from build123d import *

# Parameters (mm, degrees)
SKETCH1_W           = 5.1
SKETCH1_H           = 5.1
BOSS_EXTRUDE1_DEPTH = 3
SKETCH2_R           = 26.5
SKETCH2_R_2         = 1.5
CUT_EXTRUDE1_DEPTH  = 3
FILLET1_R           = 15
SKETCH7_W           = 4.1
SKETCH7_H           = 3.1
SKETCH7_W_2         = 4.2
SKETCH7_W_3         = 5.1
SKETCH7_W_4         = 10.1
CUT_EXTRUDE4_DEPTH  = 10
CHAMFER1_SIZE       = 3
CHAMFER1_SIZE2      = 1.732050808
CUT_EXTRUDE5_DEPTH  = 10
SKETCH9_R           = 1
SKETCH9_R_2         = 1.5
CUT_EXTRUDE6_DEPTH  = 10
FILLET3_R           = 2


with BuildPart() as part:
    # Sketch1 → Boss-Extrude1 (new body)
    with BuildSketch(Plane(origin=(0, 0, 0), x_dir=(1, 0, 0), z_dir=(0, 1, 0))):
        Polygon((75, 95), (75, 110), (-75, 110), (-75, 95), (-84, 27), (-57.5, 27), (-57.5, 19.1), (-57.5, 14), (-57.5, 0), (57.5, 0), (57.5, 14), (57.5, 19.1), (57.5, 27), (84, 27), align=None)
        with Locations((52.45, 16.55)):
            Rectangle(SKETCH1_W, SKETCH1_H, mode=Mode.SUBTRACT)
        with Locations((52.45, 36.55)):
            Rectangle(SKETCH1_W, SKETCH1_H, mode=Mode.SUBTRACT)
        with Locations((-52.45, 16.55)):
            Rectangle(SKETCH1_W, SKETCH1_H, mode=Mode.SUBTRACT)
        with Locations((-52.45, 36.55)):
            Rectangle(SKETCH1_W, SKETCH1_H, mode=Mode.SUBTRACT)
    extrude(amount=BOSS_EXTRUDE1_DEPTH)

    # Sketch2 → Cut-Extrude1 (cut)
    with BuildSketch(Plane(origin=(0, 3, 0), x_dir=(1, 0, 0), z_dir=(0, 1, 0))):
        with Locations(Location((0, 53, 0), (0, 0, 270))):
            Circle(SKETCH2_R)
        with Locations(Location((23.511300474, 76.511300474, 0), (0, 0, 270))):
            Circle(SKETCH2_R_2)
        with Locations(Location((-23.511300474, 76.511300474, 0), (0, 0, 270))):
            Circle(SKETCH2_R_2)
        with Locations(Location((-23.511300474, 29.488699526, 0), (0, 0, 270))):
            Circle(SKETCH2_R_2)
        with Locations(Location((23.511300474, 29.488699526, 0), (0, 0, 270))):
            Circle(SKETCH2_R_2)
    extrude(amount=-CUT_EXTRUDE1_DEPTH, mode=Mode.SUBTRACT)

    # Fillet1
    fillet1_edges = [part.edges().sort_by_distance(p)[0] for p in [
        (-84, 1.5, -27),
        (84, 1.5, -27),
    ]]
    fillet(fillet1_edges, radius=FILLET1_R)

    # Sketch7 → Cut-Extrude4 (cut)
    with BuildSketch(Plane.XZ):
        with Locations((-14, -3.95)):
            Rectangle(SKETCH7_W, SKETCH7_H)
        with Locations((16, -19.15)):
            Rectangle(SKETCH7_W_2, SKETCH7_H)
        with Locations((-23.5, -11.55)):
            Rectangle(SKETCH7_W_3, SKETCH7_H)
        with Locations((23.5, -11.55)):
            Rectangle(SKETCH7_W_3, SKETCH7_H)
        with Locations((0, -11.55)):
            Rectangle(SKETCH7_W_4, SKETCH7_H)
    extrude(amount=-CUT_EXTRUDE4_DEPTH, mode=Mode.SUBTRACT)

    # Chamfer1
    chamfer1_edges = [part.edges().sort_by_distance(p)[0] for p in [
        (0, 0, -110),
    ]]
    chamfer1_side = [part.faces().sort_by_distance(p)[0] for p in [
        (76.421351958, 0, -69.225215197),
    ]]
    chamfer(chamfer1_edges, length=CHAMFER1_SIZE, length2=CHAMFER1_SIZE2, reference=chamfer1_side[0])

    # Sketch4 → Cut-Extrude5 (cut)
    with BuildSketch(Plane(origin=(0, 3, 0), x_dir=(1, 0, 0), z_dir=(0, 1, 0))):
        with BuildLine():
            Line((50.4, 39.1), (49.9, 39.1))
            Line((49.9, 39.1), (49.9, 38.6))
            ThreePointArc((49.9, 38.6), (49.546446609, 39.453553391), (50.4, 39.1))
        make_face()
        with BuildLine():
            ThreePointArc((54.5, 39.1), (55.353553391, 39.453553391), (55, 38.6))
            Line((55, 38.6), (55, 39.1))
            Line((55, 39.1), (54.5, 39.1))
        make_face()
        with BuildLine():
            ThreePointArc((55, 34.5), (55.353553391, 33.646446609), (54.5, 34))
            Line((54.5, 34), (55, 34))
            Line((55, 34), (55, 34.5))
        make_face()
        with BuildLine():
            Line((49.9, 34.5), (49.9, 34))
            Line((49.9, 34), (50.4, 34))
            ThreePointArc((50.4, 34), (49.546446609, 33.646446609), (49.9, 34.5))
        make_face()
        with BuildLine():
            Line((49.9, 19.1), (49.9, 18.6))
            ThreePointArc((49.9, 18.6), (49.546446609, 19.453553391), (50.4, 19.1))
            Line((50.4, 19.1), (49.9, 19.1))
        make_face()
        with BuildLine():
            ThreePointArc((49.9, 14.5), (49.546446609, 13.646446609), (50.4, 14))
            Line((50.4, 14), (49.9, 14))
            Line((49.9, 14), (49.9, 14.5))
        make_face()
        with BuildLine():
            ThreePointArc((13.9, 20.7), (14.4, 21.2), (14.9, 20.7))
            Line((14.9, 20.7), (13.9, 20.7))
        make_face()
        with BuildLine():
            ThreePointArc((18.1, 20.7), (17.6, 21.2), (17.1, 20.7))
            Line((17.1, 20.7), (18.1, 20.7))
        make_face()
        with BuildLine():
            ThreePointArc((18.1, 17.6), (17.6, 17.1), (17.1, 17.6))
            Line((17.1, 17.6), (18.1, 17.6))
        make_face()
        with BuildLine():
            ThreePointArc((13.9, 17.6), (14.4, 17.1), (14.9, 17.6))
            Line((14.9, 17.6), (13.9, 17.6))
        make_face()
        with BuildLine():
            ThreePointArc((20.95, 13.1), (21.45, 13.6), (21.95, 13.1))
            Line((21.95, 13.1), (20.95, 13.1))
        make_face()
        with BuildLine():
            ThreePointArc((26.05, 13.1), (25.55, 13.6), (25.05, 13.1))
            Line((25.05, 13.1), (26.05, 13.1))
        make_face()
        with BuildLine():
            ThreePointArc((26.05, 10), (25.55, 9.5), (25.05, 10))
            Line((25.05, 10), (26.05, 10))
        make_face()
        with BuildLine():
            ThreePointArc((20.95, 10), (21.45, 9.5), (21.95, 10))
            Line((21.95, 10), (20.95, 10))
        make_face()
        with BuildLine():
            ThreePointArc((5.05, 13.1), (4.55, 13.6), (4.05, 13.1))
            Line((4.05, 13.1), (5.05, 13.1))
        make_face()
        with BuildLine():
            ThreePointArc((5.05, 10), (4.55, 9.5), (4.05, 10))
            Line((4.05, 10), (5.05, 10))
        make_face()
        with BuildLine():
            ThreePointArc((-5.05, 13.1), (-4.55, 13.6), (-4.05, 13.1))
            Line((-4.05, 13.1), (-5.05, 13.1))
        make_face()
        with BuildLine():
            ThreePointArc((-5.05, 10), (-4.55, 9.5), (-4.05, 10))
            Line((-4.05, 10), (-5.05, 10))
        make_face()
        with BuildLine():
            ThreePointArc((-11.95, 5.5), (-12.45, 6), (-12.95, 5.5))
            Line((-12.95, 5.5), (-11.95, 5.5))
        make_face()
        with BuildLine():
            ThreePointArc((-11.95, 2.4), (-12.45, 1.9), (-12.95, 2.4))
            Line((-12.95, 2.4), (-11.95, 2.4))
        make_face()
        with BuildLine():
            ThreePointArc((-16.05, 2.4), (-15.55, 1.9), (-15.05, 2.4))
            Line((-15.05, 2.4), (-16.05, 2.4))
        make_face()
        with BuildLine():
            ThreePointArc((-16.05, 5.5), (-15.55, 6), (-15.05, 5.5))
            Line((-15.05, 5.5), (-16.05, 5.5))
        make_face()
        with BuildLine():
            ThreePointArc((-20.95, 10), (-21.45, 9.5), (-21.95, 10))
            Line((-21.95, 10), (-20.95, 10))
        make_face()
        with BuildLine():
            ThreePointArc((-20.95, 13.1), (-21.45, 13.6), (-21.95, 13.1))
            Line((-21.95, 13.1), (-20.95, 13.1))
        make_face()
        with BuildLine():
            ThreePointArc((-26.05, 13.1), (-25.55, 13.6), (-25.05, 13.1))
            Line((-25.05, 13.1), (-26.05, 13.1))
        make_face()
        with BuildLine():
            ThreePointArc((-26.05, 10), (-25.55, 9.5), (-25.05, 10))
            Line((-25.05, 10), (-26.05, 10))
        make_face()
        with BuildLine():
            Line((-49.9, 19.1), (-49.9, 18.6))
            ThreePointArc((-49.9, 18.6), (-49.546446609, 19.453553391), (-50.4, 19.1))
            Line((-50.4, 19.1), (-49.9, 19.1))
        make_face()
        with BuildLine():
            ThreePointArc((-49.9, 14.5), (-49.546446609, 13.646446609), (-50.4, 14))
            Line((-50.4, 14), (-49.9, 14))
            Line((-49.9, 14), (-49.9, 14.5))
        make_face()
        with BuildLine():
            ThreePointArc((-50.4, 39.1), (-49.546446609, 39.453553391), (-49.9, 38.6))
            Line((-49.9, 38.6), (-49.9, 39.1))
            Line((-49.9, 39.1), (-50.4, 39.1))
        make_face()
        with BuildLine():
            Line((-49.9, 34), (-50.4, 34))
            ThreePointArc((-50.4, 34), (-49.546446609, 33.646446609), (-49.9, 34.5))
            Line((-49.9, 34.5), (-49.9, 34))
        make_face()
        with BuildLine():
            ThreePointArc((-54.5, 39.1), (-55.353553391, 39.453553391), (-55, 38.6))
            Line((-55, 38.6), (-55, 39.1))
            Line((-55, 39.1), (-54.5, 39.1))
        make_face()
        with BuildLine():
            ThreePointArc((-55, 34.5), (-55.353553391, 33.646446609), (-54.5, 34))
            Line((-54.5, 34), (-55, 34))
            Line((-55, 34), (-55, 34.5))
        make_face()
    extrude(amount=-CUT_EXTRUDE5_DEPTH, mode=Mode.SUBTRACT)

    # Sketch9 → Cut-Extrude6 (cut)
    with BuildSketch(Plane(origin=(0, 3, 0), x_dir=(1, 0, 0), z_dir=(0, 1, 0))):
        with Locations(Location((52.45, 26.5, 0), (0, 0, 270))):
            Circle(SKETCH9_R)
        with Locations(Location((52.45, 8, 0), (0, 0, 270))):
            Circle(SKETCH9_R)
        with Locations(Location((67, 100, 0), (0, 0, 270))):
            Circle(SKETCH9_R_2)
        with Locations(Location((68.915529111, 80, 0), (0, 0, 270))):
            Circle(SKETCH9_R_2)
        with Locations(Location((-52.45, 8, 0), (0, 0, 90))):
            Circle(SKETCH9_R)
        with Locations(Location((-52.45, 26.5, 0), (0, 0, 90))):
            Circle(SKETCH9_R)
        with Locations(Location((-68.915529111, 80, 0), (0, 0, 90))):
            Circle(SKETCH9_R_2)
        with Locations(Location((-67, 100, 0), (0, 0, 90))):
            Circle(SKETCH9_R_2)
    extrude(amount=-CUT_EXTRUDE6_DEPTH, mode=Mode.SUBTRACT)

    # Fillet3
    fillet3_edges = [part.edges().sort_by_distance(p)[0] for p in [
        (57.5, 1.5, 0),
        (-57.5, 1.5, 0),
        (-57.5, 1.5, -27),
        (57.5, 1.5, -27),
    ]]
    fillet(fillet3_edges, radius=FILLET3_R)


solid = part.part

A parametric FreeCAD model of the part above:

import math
import FreeCAD as App
import Part
import Sketcher
Q = App.Units.Quantity


def edges_at(feature, points):
    """Names of the edges that pass closest to the given points."""
    edges = feature.Shape.Edges
    near = lambda p: min(range(len(edges)), key=lambda i: edges[i].distToShape(Part.Vertex(*p))[0])
    return sorted({f"Edge{near(p) + 1}" for p in points})

doc = App.newDocument("Part")
params = doc.addObject("Spreadsheet::Sheet", "Params")
for row, (alias, value) in enumerate([
    ("sketch1_width", "150 mm"),
    ("sketch1_width2", "115 mm"),
    ("sketch1_height", "15 mm"),
    ("sketch1_height2", "27 mm"),
    ("sketch1_width3", "26.5 mm"),
    ("pad1_length", "3 mm"),
    ("sketch2_diameter", "53 mm"),
    ("sketch2_diameter2", "3 mm"),
    ("pocket1_length", "3 mm"),
    ("fillet_radius", "15 mm"),
    ("sketch3_width", "4.1 mm"),
    ("sketch3_width2", "4.2 mm"),
    ("sketch3_width3", "5.1 mm"),
    ("sketch3_width4", "10.1 mm"),
    ("sketch3_height", "3.1 mm"),
    ("pocket2_length", "10 mm"),
    ("chamfer_size", "3 mm"),
    ("chamfer_size2", "1.732051 mm"),
    ("sketch4_radius", "0.5 mm"),
    ("pocket3_length", "10 mm"),
    ("sketch5_diameter", "2 mm"),
    ("sketch5_diameter2", "3 mm"),
    ("pocket4_length", "10 mm"),
    ("fillet2_radius", "2 mm"),
], start=1):
    params.set(f"A{row}", alias)
    params.set(f"B{row}", "=" + value)
    params.setAlias(f"B{row}", alias)

body = doc.addObject("PartDesign::Body", "Body")

# Sketch on XZ plane
sketch1 = doc.addObject("Sketcher::SketchObject", "Sketch")
body.addObject(sketch1)
sketch1.AttachmentSupport = (doc.XZ_Plane, [""])
sketch1.MapMode = "FlatFace"
sketch1.addGeometry([
    Part.LineSegment(App.Vector(75, -95, 0), App.Vector(75, -110, 0)),  # 0
    Part.LineSegment(App.Vector(75, -110, 0), App.Vector(-75, -110, 0)),  # 1
    Part.LineSegment(App.Vector(-75, -110, 0), App.Vector(-75, -95, 0)),  # 2
    Part.LineSegment(App.Vector(-75, -95, 0), App.Vector(-84, -27, 0)),  # 3
    Part.LineSegment(App.Vector(-84, -27, 0), App.Vector(-58, -27, 0)),  # 4
    Part.LineSegment(App.Vector(-58, -27, 0), App.Vector(-58, 0, 0)),  # 5
    Part.LineSegment(App.Vector(-58, 0, 0), App.Vector(58, 0, 0)),  # 6
    Part.LineSegment(App.Vector(58, 0, 0), App.Vector(58, -27, 0)),  # 7
    Part.LineSegment(App.Vector(58, -27, 0), App.Vector(84, -27, 0)),  # 8
    Part.LineSegment(App.Vector(84, -27, 0), App.Vector(75, -95, 0)),  # 9
    Part.LineSegment(App.Vector(-50, -14, 0), App.Vector(-55, -14, 0)),  # 10
    Part.LineSegment(App.Vector(-55, -14, 0), App.Vector(-55, -19, 0)),  # 11
    Part.LineSegment(App.Vector(-55, -19, 0), App.Vector(-50, -19, 0)),  # 12
    Part.LineSegment(App.Vector(-50, -19, 0), App.Vector(-50, -14, 0)),  # 13
    Part.LineSegment(App.Vector(55, -14, 0), App.Vector(50, -14, 0)),  # 14
    Part.LineSegment(App.Vector(50, -14, 0), App.Vector(50, -19, 0)),  # 15
    Part.LineSegment(App.Vector(50, -19, 0), App.Vector(55, -19, 0)),  # 16
    Part.LineSegment(App.Vector(55, -19, 0), App.Vector(55, -14, 0)),  # 17
    Part.LineSegment(App.Vector(-50, -34, 0), App.Vector(-55, -34, 0)),  # 18
    Part.LineSegment(App.Vector(-55, -34, 0), App.Vector(-55, -39, 0)),  # 19
    Part.LineSegment(App.Vector(-55, -39, 0), App.Vector(-50, -39, 0)),  # 20
    Part.LineSegment(App.Vector(-50, -39, 0), App.Vector(-50, -34, 0)),  # 21
    Part.LineSegment(App.Vector(55, -34, 0), App.Vector(50, -34, 0)),  # 22
    Part.LineSegment(App.Vector(50, -34, 0), App.Vector(50, -39, 0)),  # 23
    Part.LineSegment(App.Vector(50, -39, 0), App.Vector(55, -39, 0)),  # 24
    Part.LineSegment(App.Vector(55, -39, 0), App.Vector(55, -34, 0)),  # 25
], False)
sketch1.addConstraint([
    Sketcher.Constraint("Coincident", 0, 2, 1, 1),
    Sketcher.Constraint("Coincident", 1, 2, 2, 1),
    Sketcher.Constraint("Coincident", 2, 2, 3, 1),
    Sketcher.Constraint("Coincident", 3, 2, 4, 1),
    Sketcher.Constraint("Coincident", 4, 2, 5, 1),
    Sketcher.Constraint("Coincident", 5, 2, 6, 1),
    Sketcher.Constraint("Coincident", 6, 2, 7, 1),
    Sketcher.Constraint("Coincident", 7, 2, 8, 1),
    Sketcher.Constraint("Coincident", 8, 2, 9, 1),
    Sketcher.Constraint("Coincident", 9, 2, 0, 1),
    Sketcher.Constraint("Coincident", 10, 2, 11, 1),
    Sketcher.Constraint("Coincident", 11, 2, 12, 1),
    Sketcher.Constraint("Coincident", 12, 2, 13, 1),
    Sketcher.Constraint("Coincident", 13, 2, 10, 1),
    Sketcher.Constraint("Coincident", 14, 2, 15, 1),
    Sketcher.Constraint("Coincident", 15, 2, 16, 1),
    Sketcher.Constraint("Coincident", 16, 2, 17, 1),
    Sketcher.Constraint("Coincident", 17, 2, 14, 1),
    Sketcher.Constraint("Coincident", 18, 2, 19, 1),
    Sketcher.Constraint("Coincident", 19, 2, 20, 1),
    Sketcher.Constraint("Coincident", 20, 2, 21, 1),
    Sketcher.Constraint("Coincident", 21, 2, 18, 1),
    Sketcher.Constraint("Coincident", 22, 2, 23, 1),
    Sketcher.Constraint("Coincident", 23, 2, 24, 1),
    Sketcher.Constraint("Coincident", 24, 2, 25, 1),
    Sketcher.Constraint("Coincident", 25, 2, 22, 1),
    Sketcher.Constraint("Vertical", 0),
    Sketcher.Constraint("Horizontal", 1),
    Sketcher.Constraint("Vertical", 2),
    Sketcher.Constraint("Horizontal", 4),
    Sketcher.Constraint("Vertical", 5),
    Sketcher.Constraint("Horizontal", 6),
    Sketcher.Constraint("Vertical", 7),
    Sketcher.Constraint("Horizontal", 8),
    Sketcher.Constraint("Horizontal", 10),
    Sketcher.Constraint("Vertical", 11),
    Sketcher.Constraint("Horizontal", 12),
    Sketcher.Constraint("Vertical", 13),
    Sketcher.Constraint("Horizontal", 14),
    Sketcher.Constraint("Vertical", 15),
    Sketcher.Constraint("Horizontal", 16),
    Sketcher.Constraint("Vertical", 17),
    Sketcher.Constraint("Horizontal", 18),
    Sketcher.Constraint("Vertical", 19),
    Sketcher.Constraint("Horizontal", 20),
    Sketcher.Constraint("Vertical", 21),
    Sketcher.Constraint("Horizontal", 22),
    Sketcher.Constraint("Vertical", 23),
    Sketcher.Constraint("Horizontal", 24),
    Sketcher.Constraint("Vertical", 25),
    Sketcher.Constraint("Symmetric", 5, 2, 6, 2, -1, 1),
    Sketcher.Constraint("Symmetric", 3, 2, 8, 2, -2),
    Sketcher.Constraint("Symmetric", 2, 2, 9, 2, -2),
    Sketcher.Constraint("Symmetric", 13, 2, 14, 2, -2),
    Sketcher.Constraint("Symmetric", 11, 2, 16, 2, -2),
    Sketcher.Constraint("Symmetric", 21, 2, 22, 2, -2),
    Sketcher.Constraint("Symmetric", 19, 2, 24, 2, -2),
    Sketcher.Constraint("Vertical", 11, 2, 18, 2),
    Sketcher.Constraint("Vertical", 13, 2, 20, 2),
    Sketcher.Constraint("Equal", 24, 11),
    Sketcher.Constraint("Equal", 17, 19),
    Sketcher.Constraint("DistanceX", 1, 2, 1, 1, Q("150 mm")),
    Sketcher.Constraint("DistanceX", 6, 1, 6, 2, Q("115 mm")),
    Sketcher.Constraint("DistanceY", 0, 2, 0, 1, Q("15 mm")),
    Sketcher.Constraint("DistanceY", 5, 1, 5, 2, Q("27 mm")),
    Sketcher.Constraint("DistanceX", 4, 1, 4, 2, Q("26.5 mm")),
    Sketcher.Constraint("DistanceX", 10, 2, 10, 1, Q("5.1 mm")),
    Sketcher.Constraint("DistanceY", 0, 2, -1, 1, Q("110 mm")),
    Sketcher.Constraint("DistanceX", 10, 2, -1, 1, Q("55 mm")),
    Sketcher.Constraint("DistanceY", 10, 2, -1, 1, Q("14 mm")),
    Sketcher.Constraint("DistanceY", 18, 2, -1, 1, Q("34 mm")),
])
sketch1.setExpression("Constraints[61]", "Params.sketch1_width")
sketch1.setExpression("Constraints[62]", "Params.sketch1_width2")
sketch1.setExpression("Constraints[63]", "Params.sketch1_height")
sketch1.setExpression("Constraints[64]", "Params.sketch1_height2")
sketch1.setExpression("Constraints[65]", "Params.sketch1_width3")
pad1 = doc.addObject("PartDesign::Pad", "Pad")
body.addObject(pad1)
pad1.Profile = sketch1
pad1.setExpression("Length", "Params.pad1_length")
pad1.Reversed = True

# Sketch on XZ plane
sketch2 = doc.addObject("Sketcher::SketchObject", "Sketch001")
body.addObject(sketch2)
sketch2.AttachmentSupport = (doc.XZ_Plane, [""])
sketch2.MapMode = "FlatFace"
sketch2.AttachmentOffset = App.Placement(App.Vector(0, 0, -3), App.Rotation())
sketch2.addGeometry([
    Part.Circle(App.Vector(0, -53, 0), App.Vector(0, 0, 1), 26.5),  # 0
    Part.Circle(App.Vector(23.5, -76.5, 0), App.Vector(0, 0, 1), 1.5),  # 1
    Part.Circle(App.Vector(-23.5, -76.5, 0), App.Vector(0, 0, 1), 1.5),  # 2
    Part.Circle(App.Vector(-23.5, -29.5, 0), App.Vector(0, 0, 1), 1.5),  # 3
    Part.Circle(App.Vector(23.5, -29.5, 0), App.Vector(0, 0, 1), 1.5),  # 4
], False)
sketch2.addConstraint([
    Sketcher.Constraint("Equal", 1, 2),
    Sketcher.Constraint("Equal", 2, 3),
    Sketcher.Constraint("Equal", 3, 4),
    Sketcher.Constraint("Symmetric", 1, 3, 2, 3, -2),
    Sketcher.Constraint("Symmetric", 3, 3, 4, 3, -2),
    Sketcher.Constraint("PointOnObject", 0, 3, -2),
    Sketcher.Constraint("Vertical", 2, 3, 3, 3),
    Sketcher.Constraint("Diameter", 0, Q("53 mm")),
    Sketcher.Constraint("Diameter", 1, Q("3 mm")),
    Sketcher.Constraint("DistanceY", 0, 3, -1, 1, Q("53 mm")),
    Sketcher.Constraint("DistanceX", -1, 1, 1, 3, Q("23.5113 mm")),
    Sketcher.Constraint("DistanceY", 1, 3, -1, 1, Q("76.5113 mm")),
    Sketcher.Constraint("DistanceY", 3, 3, -1, 1, Q("29.4887 mm")),
])
sketch2.setExpression("Constraints[7]", "Params.sketch2_diameter")
sketch2.setExpression("Constraints[8]", "Params.sketch2_diameter2")
pocket1 = doc.addObject("PartDesign::Pocket", "Pocket")
body.addObject(pocket1)
pocket1.Profile = sketch2
pocket1.setExpression("Length", "Params.pocket1_length")
pocket1.Reversed = True
doc.recompute()

fillet = doc.addObject("PartDesign::Fillet", "Fillet")
body.addObject(fillet)
fillet.Base = (pocket1, edges_at(pocket1, [(-84, 1.5, -27), (84, 1.5, -27)]))
fillet.setExpression("Radius", "Params.fillet_radius")

# Sketch on XZ plane
sketch3 = doc.addObject("Sketcher::SketchObject", "Sketch002")
body.addObject(sketch3)
sketch3.AttachmentSupport = (doc.XZ_Plane, [""])
sketch3.MapMode = "FlatFace"
sketch3.addGeometry([
    Part.LineSegment(App.Vector(-16.1, -2.4, 0), App.Vector(-16.1, -5.5, 0)),  # 0
    Part.LineSegment(App.Vector(-16.1, -5.5, 0), App.Vector(-11.9, -5.5, 0)),  # 1
    Part.LineSegment(App.Vector(-11.9, -5.5, 0), App.Vector(-11.9, -2.4, 0)),  # 2
    Part.LineSegment(App.Vector(-11.9, -2.4, 0), App.Vector(-16.1, -2.4, 0)),  # 3
    Part.LineSegment(App.Vector(13.9, -17.6, 0), App.Vector(13.9, -20.7, 0)),  # 4
    Part.LineSegment(App.Vector(13.9, -20.7, 0), App.Vector(18.1, -20.7, 0)),  # 5
    Part.LineSegment(App.Vector(18.1, -20.7, 0), App.Vector(18.1, -17.6, 0)),  # 6
    Part.LineSegment(App.Vector(18.1, -17.6, 0), App.Vector(13.9, -17.6, 0)),  # 7
    Part.LineSegment(App.Vector(-26.1, -10, 0), App.Vector(-26.1, -13.1, 0)),  # 8
    Part.LineSegment(App.Vector(-26.1, -13.1, 0), App.Vector(-20.9, -13.1, 0)),  # 9
    Part.LineSegment(App.Vector(-20.9, -13.1, 0), App.Vector(-20.9, -10, 0)),  # 10
    Part.LineSegment(App.Vector(-20.9, -10, 0), App.Vector(-26.1, -10, 0)),  # 11
    Part.LineSegment(App.Vector(20.9, -10, 0), App.Vector(20.9, -13.1, 0)),  # 12
    Part.LineSegment(App.Vector(20.9, -13.1, 0), App.Vector(26.1, -13.1, 0)),  # 13
    Part.LineSegment(App.Vector(26.1, -13.1, 0), App.Vector(26.1, -10, 0)),  # 14
    Part.LineSegment(App.Vector(26.1, -10, 0), App.Vector(20.9, -10, 0)),  # 15
    Part.LineSegment(App.Vector(-5, -10, 0), App.Vector(-5, -13.1, 0)),  # 16
    Part.LineSegment(App.Vector(-5, -13.1, 0), App.Vector(5, -13.1, 0)),  # 17
    Part.LineSegment(App.Vector(5, -13.1, 0), App.Vector(5, -10, 0)),  # 18
    Part.LineSegment(App.Vector(5, -10, 0), App.Vector(-5, -10, 0)),  # 19
], False)
sketch3.addConstraint([
    Sketcher.Constraint("Coincident", 0, 2, 1, 1),
    Sketcher.Constraint("Coincident", 1, 2, 2, 1),
    Sketcher.Constraint("Coincident", 2, 2, 3, 1),
    Sketcher.Constraint("Coincident", 3, 2, 0, 1),
    Sketcher.Constraint("Coincident", 4, 2, 5, 1),
    Sketcher.Constraint("Coincident", 5, 2, 6, 1),
    Sketcher.Constraint("Coincident", 6, 2, 7, 1),
    Sketcher.Constraint("Coincident", 7, 2, 4, 1),
    Sketcher.Constraint("Coincident", 8, 2, 9, 1),
    Sketcher.Constraint("Coincident", 9, 2, 10, 1),
    Sketcher.Constraint("Coincident", 10, 2, 11, 1),
    Sketcher.Constraint("Coincident", 11, 2, 8, 1),
    Sketcher.Constraint("Coincident", 12, 2, 13, 1),
    Sketcher.Constraint("Coincident", 13, 2, 14, 1),
    Sketcher.Constraint("Coincident", 14, 2, 15, 1),
    Sketcher.Constraint("Coincident", 15, 2, 12, 1),
    Sketcher.Constraint("Coincident", 16, 2, 17, 1),
    Sketcher.Constraint("Coincident", 17, 2, 18, 1),
    Sketcher.Constraint("Coincident", 18, 2, 19, 1),
    Sketcher.Constraint("Coincident", 19, 2, 16, 1),
    Sketcher.Constraint("Vertical", 0),
    Sketcher.Constraint("Horizontal", 1),
    Sketcher.Constraint("Vertical", 2),
    Sketcher.Constraint("Horizontal", 3),
    Sketcher.Constraint("Vertical", 4),
    Sketcher.Constraint("Horizontal", 5),
    Sketcher.Constraint("Vertical", 6),
    Sketcher.Constraint("Horizontal", 7),
    Sketcher.Constraint("Vertical", 8),
    Sketcher.Constraint("Horizontal", 9),
    Sketcher.Constraint("Vertical", 10),
    Sketcher.Constraint("Horizontal", 11),
    Sketcher.Constraint("Vertical", 12),
    Sketcher.Constraint("Horizontal", 13),
    Sketcher.Constraint("Vertical", 14),
    Sketcher.Constraint("Horizontal", 15),
    Sketcher.Constraint("Vertical", 16),
    Sketcher.Constraint("Horizontal", 17),
    Sketcher.Constraint("Vertical", 18),
    Sketcher.Constraint("Horizontal", 19),
    Sketcher.Constraint("Symmetric", 9, 2, 12, 2, -2),
    Sketcher.Constraint("Symmetric", 11, 2, 14, 2, -2),
    Sketcher.Constraint("Horizontal", 13, 2, 16, 2),
    Sketcher.Constraint("Horizontal", 15, 2, 18, 2),
    Sketcher.Constraint("Equal", 2, 4),
    Sketcher.Constraint("Equal", 6, 8),
    Sketcher.Constraint("DistanceX", 1, 1, 1, 2, Q("4.1 mm")),
    Sketcher.Constraint("DistanceX", 5, 1, 5, 2, Q("4.2 mm")),
    Sketcher.Constraint("DistanceX", 9, 1, 9, 2, Q("5.1 mm")),
    Sketcher.Constraint("DistanceX", 17, 1, 17, 2, Q("10.1 mm")),
    Sketcher.Constraint("DistanceY", 0, 2, 0, 1, Q("3.1 mm")),
    Sketcher.Constraint("DistanceY", 10, 2, -1, 1, Q("10 mm")),
    Sketcher.Constraint("DistanceX", 8, 2, 0, 2, Q("10 mm")),
    Sketcher.Constraint("DistanceX", 0, 2, 16, 2, Q("11 mm")),
    Sketcher.Constraint("DistanceY", 0, 2, -1, 1, Q("5.5 mm")),
    Sketcher.Constraint("DistanceX", -1, 1, 4, 2, Q("13.9 mm")),
    Sketcher.Constraint("DistanceY", 4, 2, -1, 1, Q("20.7 mm")),
    Sketcher.Constraint("DistanceX", 1, 2, 12, 2, Q("32.9 mm")),
])
sketch3.setExpression("Constraints[46]", "Params.sketch3_width")
sketch3.setExpression("Constraints[47]", "Params.sketch3_width2")
sketch3.setExpression("Constraints[48]", "Params.sketch3_width3")
sketch3.setExpression("Constraints[49]", "Params.sketch3_width4")
sketch3.setExpression("Constraints[50]", "Params.sketch3_height")
pocket2 = doc.addObject("PartDesign::Pocket", "Pocket001")
body.addObject(pocket2)
pocket2.Profile = sketch3
pocket2.setExpression("Length", "Params.pocket2_length")
doc.recompute()

chamfer = doc.addObject("PartDesign::Chamfer", "Chamfer")
body.addObject(chamfer)
chamfer.Base = (pocket2, edges_at(pocket2, [(0, 0, -110)]))
chamfer.ChamferType = "Two distances"
chamfer.setExpression("Size", "Params.chamfer_size")
chamfer.setExpression("Size2", "Params.chamfer_size2")

# Sketch on XZ plane
sketch4 = doc.addObject("Sketcher::SketchObject", "Sketch003")
body.addObject(sketch4)
sketch4.AttachmentSupport = (doc.XZ_Plane, [""])
sketch4.MapMode = "FlatFace"
sketch4.AttachmentOffset = App.Placement(App.Vector(0, 0, -3), App.Rotation())
sketch4.addGeometry([
    Part.LineSegment(App.Vector(49.9, -39.1, 0), App.Vector(50.4, -39.1, 0)),  # 0
    Part.ArcOfCircle(Part.Circle(App.Vector(49.9, -39.1, 0), App.Vector(0, 0, 1), 0.5), math.radians(90), math.radians(360)),  # 1
    Part.LineSegment(App.Vector(49.9, -38.6, 0), App.Vector(49.9, -39.1, 0)),  # 2
    Part.ArcOfCircle(Part.Circle(App.Vector(55, -39.1, 0), App.Vector(0, 0, 1), 0.5), math.radians(180), math.radians(450)),  # 3
    Part.LineSegment(App.Vector(54.5, -39.1, 0), App.Vector(55, -39.1, 0)),  # 4
    Part.LineSegment(App.Vector(55, -39.1, 0), App.Vector(55, -38.6, 0)),  # 5
    Part.ArcOfCircle(Part.Circle(App.Vector(55, -34, 0), App.Vector(0, 0, 1), 0.5), math.radians(-90), math.radians(180)),  # 6
    Part.LineSegment(App.Vector(55, -34.5, 0), App.Vector(55, -34, 0)),  # 7
    Part.LineSegment(App.Vector(55, -34, 0), App.Vector(54.5, -34, 0)),  # 8
    Part.LineSegment(App.Vector(49.9, -34, 0), App.Vector(49.9, -34.5, 0)),  # 9
    Part.ArcOfCircle(Part.Circle(App.Vector(49.9, -34, 0), App.Vector(0, 0, 1), 0.5), math.radians(0), math.radians(270)),  # 10
    Part.LineSegment(App.Vector(50.4, -34, 0), App.Vector(49.9, -34, 0)),  # 11
    Part.LineSegment(App.Vector(49.9, -18.6, 0), App.Vector(49.9, -19.1, 0)),  # 12
    Part.LineSegment(App.Vector(49.9, -19.1, 0), App.Vector(50.4, -19.1, 0)),  # 13
    Part.ArcOfCircle(Part.Circle(App.Vector(49.9, -19.1, 0), App.Vector(0, 0, 1), 0.5), math.radians(90), math.radians(360)),  # 14
    Part.ArcOfCircle(Part.Circle(App.Vector(49.9, -14, 0), App.Vector(0, 0, 1), 0.5), math.radians(0), math.radians(270)),  # 15
    Part.LineSegment(App.Vector(50.4, -14, 0), App.Vector(49.9, -14, 0)),  # 16
    Part.LineSegment(App.Vector(49.9, -14, 0), App.Vector(49.9, -14.5, 0)),  # 17
    Part.ArcOfCircle(Part.Circle(App.Vector(14.4, -20.7, 0), App.Vector(0, 0, 1), 0.5), math.radians(180), math.radians(360)),  # 18
    Part.LineSegment(App.Vector(13.9, -20.7, 0), App.Vector(14.9, -20.7, 0)),  # 19
    Part.ArcOfCircle(Part.Circle(App.Vector(17.6, -20.7, 0), App.Vector(0, 0, 1), 0.5), math.radians(180), math.radians(360)),  # 20
    Part.LineSegment(App.Vector(17.1, -20.7, 0), App.Vector(18.1, -20.7, 0)),  # 21
    Part.ArcOfCircle(Part.Circle(App.Vector(17.6, -17.6, 0), App.Vector(0, 0, 1), 0.5), math.radians(0), math.radians(180)),  # 22
    Part.LineSegment(App.Vector(18.1, -17.6, 0), App.Vector(17.1, -17.6, 0)),  # 23
    Part.ArcOfCircle(Part.Circle(App.Vector(14.4, -17.6, 0), App.Vector(0, 0, 1), 0.5), math.radians(0), math.radians(180)),  # 24
    Part.LineSegment(App.Vector(14.9, -17.6, 0), App.Vector(13.9, -17.6, 0)),  # 25
    Part.ArcOfCircle(Part.Circle(App.Vector(21.4, -13.1, 0), App.Vector(0, 0, 1), 0.5), math.radians(180), math.radians(360)),  # 26
    Part.LineSegment(App.Vector(20.9, -13.1, 0), App.Vector(21.9, -13.1, 0)),  # 27
    Part.ArcOfCircle(Part.Circle(App.Vector(25.6, -13.1, 0), App.Vector(0, 0, 1), 0.5), math.radians(180), math.radians(360)),  # 28
    Part.LineSegment(App.Vector(25.1, -13.1, 0), App.Vector(26.1, -13.1, 0)),  # 29
    Part.ArcOfCircle(Part.Circle(App.Vector(25.6, -10, 0), App.Vector(0, 0, 1), 0.5), math.radians(0), math.radians(180)),  # 30
    Part.LineSegment(App.Vector(26.1, -10, 0), App.Vector(25.1, -10, 0)),  # 31
    Part.ArcOfCircle(Part.Circle(App.Vector(21.4, -10, 0), App.Vector(0, 0, 1), 0.5), math.radians(0), math.radians(180)),  # 32
    Part.LineSegment(App.Vector(21.9, -10, 0), App.Vector(20.9, -10, 0)),  # 33
    Part.ArcOfCircle(Part.Circle(App.Vector(4.5, -13.1, 0), App.Vector(0, 0, 1), 0.5), math.radians(180), math.radians(360)),  # 34
    Part.LineSegment(App.Vector(4, -13.1, 0), App.Vector(5, -13.1, 0)),  # 35
    Part.ArcOfCircle(Part.Circle(App.Vector(4.5, -10, 0), App.Vector(0, 0, 1), 0.5), math.radians(0), math.radians(180)),  # 36
    Part.LineSegment(App.Vector(5, -10, 0), App.Vector(4, -10, 0)),  # 37
    Part.ArcOfCircle(Part.Circle(App.Vector(-4.5, -13.1, 0), App.Vector(0, 0, 1), 0.5), math.radians(180), math.radians(360)),  # 38
    Part.LineSegment(App.Vector(-5, -13.1, 0), App.Vector(-4, -13.1, 0)),  # 39
    Part.ArcOfCircle(Part.Circle(App.Vector(-4.5, -10, 0), App.Vector(0, 0, 1), 0.5), math.radians(0), math.radians(180)),  # 40
    Part.LineSegment(App.Vector(-4, -10, 0), App.Vector(-5, -10, 0)),  # 41
    Part.ArcOfCircle(Part.Circle(App.Vector(-12.4, -5.5, 0), App.Vector(0, 0, 1), 0.5), math.radians(180), math.radians(360)),  # 42
    Part.LineSegment(App.Vector(-12.9, -5.5, 0), App.Vector(-11.9, -5.5, 0)),  # 43
    Part.ArcOfCircle(Part.Circle(App.Vector(-12.4, -2.4, 0), App.Vector(0, 0, 1), 0.5), math.radians(0), math.radians(180)),  # 44
    Part.LineSegment(App.Vector(-11.9, -2.4, 0), App.Vector(-12.9, -2.4, 0)),  # 45
    Part.ArcOfCircle(Part.Circle(App.Vector(-15.6, -2.4, 0), App.Vector(0, 0, 1), 0.5), math.radians(0), math.radians(180)),  # 46
    Part.LineSegment(App.Vector(-15.1, -2.4, 0), App.Vector(-16.1, -2.4, 0)),  # 47
    Part.ArcOfCircle(Part.Circle(App.Vector(-15.6, -5.5, 0), App.Vector(0, 0, 1), 0.5), math.radians(180), math.radians(360)),  # 48
    Part.LineSegment(App.Vector(-16.1, -5.5, 0), App.Vector(-15.1, -5.5, 0)),  # 49
    Part.ArcOfCircle(Part.Circle(App.Vector(-21.4, -10, 0), App.Vector(0, 0, 1), 0.5), math.radians(0), math.radians(180)),  # 50
    Part.LineSegment(App.Vector(-20.9, -10, 0), App.Vector(-21.9, -10, 0)),  # 51
    Part.ArcOfCircle(Part.Circle(App.Vector(-21.4, -13.1, 0), App.Vector(0, 0, 1), 0.5), math.radians(180), math.radians(360)),  # 52
    Part.LineSegment(App.Vector(-21.9, -13.1, 0), App.Vector(-20.9, -13.1, 0)),  # 53
    Part.ArcOfCircle(Part.Circle(App.Vector(-25.6, -13.1, 0), App.Vector(0, 0, 1), 0.5), math.radians(180), math.radians(360)),  # 54
    Part.LineSegment(App.Vector(-26.1, -13.1, 0), App.Vector(-25.1, -13.1, 0)),  # 55
    Part.ArcOfCircle(Part.Circle(App.Vector(-25.6, -10, 0), App.Vector(0, 0, 1), 0.5), math.radians(0), math.radians(180)),  # 56
    Part.LineSegment(App.Vector(-25.1, -10, 0), App.Vector(-26.1, -10, 0)),  # 57
    Part.LineSegment(App.Vector(-49.9, -19.1, 0), App.Vector(-49.9, -18.6, 0)),  # 58
    Part.ArcOfCircle(Part.Circle(App.Vector(-49.9, -19.1, 0), App.Vector(0, 0, 1), 0.5), math.radians(180), math.radians(450)),  # 59
    Part.LineSegment(App.Vector(-50.4, -19.1, 0), App.Vector(-49.9, -19.1, 0)),  # 60
    Part.ArcOfCircle(Part.Circle(App.Vector(-49.9, -14, 0), App.Vector(0, 0, 1), 0.5), math.radians(-90), math.radians(180)),  # 61
    Part.LineSegment(App.Vector(-49.9, -14.5, 0), App.Vector(-49.9, -14, 0)),  # 62
    Part.LineSegment(App.Vector(-49.9, -14, 0), App.Vector(-50.4, -14, 0)),  # 63
    Part.ArcOfCircle(Part.Circle(App.Vector(-49.9, -39.1, 0), App.Vector(0, 0, 1), 0.5), math.radians(180), math.radians(450)),  # 64
    Part.LineSegment(App.Vector(-50.4, -39.1, 0), App.Vector(-49.9, -39.1, 0)),  # 65
    Part.LineSegment(App.Vector(-49.9, -39.1, 0), App.Vector(-49.9, -38.6, 0)),  # 66
    Part.LineSegment(App.Vector(-49.9, -34, 0), App.Vector(-50.4, -34, 0)),  # 67
    Part.ArcOfCircle(Part.Circle(App.Vector(-49.9, -34, 0), App.Vector(0, 0, 1), 0.5), math.radians(-90), math.radians(180)),  # 68
    Part.LineSegment(App.Vector(-49.9, -34.5, 0), App.Vector(-49.9, -34, 0)),  # 69
    Part.ArcOfCircle(Part.Circle(App.Vector(-55, -39.1, 0), App.Vector(0, 0, 1), 0.5), math.radians(90), math.radians(360)),  # 70
    Part.LineSegment(App.Vector(-55, -38.6, 0), App.Vector(-55, -39.1, 0)),  # 71
    Part.LineSegment(App.Vector(-55, -39.1, 0), App.Vector(-54.5, -39.1, 0)),  # 72
    Part.ArcOfCircle(Part.Circle(App.Vector(-55, -34, 0), App.Vector(0, 0, 1), 0.5), math.radians(0), math.radians(270)),  # 73
    Part.LineSegment(App.Vector(-54.5, -34, 0), App.Vector(-55, -34, 0)),  # 74
    Part.LineSegment(App.Vector(-55, -34, 0), App.Vector(-55, -34.5, 0)),  # 75
], False)
sketch4.addConstraint([
    Sketcher.Constraint("Coincident", 0, 2, 1, 2),
    Sketcher.Constraint("Coincident", 1, 1, 2, 1),
    Sketcher.Constraint("Coincident", 2, 2, 0, 1),
    Sketcher.Constraint("Coincident", 3, 1, 4, 1),
    Sketcher.Constraint("Coincident", 4, 2, 5, 1),
    Sketcher.Constraint("Coincident", 5, 2, 3, 2),
    Sketcher.Constraint("Coincident", 6, 1, 7, 1),
    Sketcher.Constraint("Coincident", 7, 2, 8, 1),
    Sketcher.Constraint("Coincident", 8, 2, 6, 2),
    Sketcher.Constraint("Coincident", 9, 2, 10, 2),
    Sketcher.Constraint("Coincident", 10, 1, 11, 1),
    Sketcher.Constraint("Coincident", 11, 2, 9, 1),
    Sketcher.Constraint("Coincident", 12, 2, 13, 1),
    Sketcher.Constraint("Coincident", 13, 2, 14, 2),
    Sketcher.Constraint("Coincident", 14, 1, 12, 1),
    Sketcher.Constraint("Coincident", 15, 1, 16, 1),
    Sketcher.Constraint("Coincident", 16, 2, 17, 1),
    Sketcher.Constraint("Coincident", 17, 2, 15, 2),
    Sketcher.Constraint("Coincident", 18, 1, 19, 1),
    Sketcher.Constraint("Coincident", 19, 2, 18, 2),
    Sketcher.Constraint("Coincident", 20, 1, 21, 1),
    Sketcher.Constraint("Coincident", 21, 2, 20, 2),
    Sketcher.Constraint("Coincident", 22, 1, 23, 1),
    Sketcher.Constraint("Coincident", 23, 2, 22, 2),
    Sketcher.Constraint("Coincident", 24, 1, 25, 1),
    Sketcher.Constraint("Coincident", 25, 2, 24, 2),
    Sketcher.Constraint("Coincident", 26, 1, 27, 1),
    Sketcher.Constraint("Coincident", 27, 2, 26, 2),
    Sketcher.Constraint("Coincident", 28, 1, 29, 1),
    Sketcher.Constraint("Coincident", 29, 2, 28, 2),
    Sketcher.Constraint("Coincident", 30, 1, 31, 1),
    Sketcher.Constraint("Coincident", 31, 2, 30, 2),
    Sketcher.Constraint("Coincident", 32, 1, 33, 1),
    Sketcher.Constraint("Coincident", 33, 2, 32, 2),
    Sketcher.Constraint("Coincident", 34, 1, 35, 1),
    Sketcher.Constraint("Coincident", 35, 2, 34, 2),
    Sketcher.Constraint("Coincident", 36, 1, 37, 1),
    Sketcher.Constraint("Coincident", 37, 2, 36, 2),
    Sketcher.Constraint("Coincident", 38, 1, 39, 1),
    Sketcher.Constraint("Coincident", 39, 2, 38, 2),
    Sketcher.Constraint("Coincident", 40, 1, 41, 1),
    Sketcher.Constraint("Coincident", 41, 2, 40, 2),
    Sketcher.Constraint("Coincident", 42, 1, 43, 1),
    Sketcher.Constraint("Coincident", 43, 2, 42, 2),
    Sketcher.Constraint("Coincident", 44, 1, 45, 1),
    Sketcher.Constraint("Coincident", 45, 2, 44, 2),
    Sketcher.Constraint("Coincident", 46, 1, 47, 1),
    Sketcher.Constraint("Coincident", 47, 2, 46, 2),
    Sketcher.Constraint("Coincident", 48, 1, 49, 1),
    Sketcher.Constraint("Coincident", 49, 2, 48, 2),
    Sketcher.Constraint("Coincident", 50, 1, 51, 1),
    Sketcher.Constraint("Coincident", 51, 2, 50, 2),
    Sketcher.Constraint("Coincident", 52, 1, 53, 1),
    Sketcher.Constraint("Coincident", 53, 2, 52, 2),
    Sketcher.Constraint("Coincident", 54, 1, 55, 1),
    Sketcher.Constraint("Coincident", 55, 2, 54, 2),
    Sketcher.Constraint("Coincident", 56, 1, 57, 1),
    Sketcher.Constraint("Coincident", 57, 2, 56, 2),
    Sketcher.Constraint("Coincident", 58, 2, 59, 2),
    Sketcher.Constraint("Coincident", 59, 1, 60, 1),
    Sketcher.Constraint("Coincident", 60, 2, 58, 1),
    Sketcher.Constraint("Coincident", 61, 1, 62, 1),
    Sketcher.Constraint("Coincident", 62, 2, 63, 1),
    Sketcher.Constraint("Coincident", 63, 2, 61, 2),
    Sketcher.Constraint("Coincident", 64, 1, 65, 1),
    Sketcher.Constraint("Coincident", 65, 2, 66, 1),
    Sketcher.Constraint("Coincident", 66, 2, 64, 2),
    Sketcher.Constraint("Coincident", 67, 2, 68, 2),
    Sketcher.Constraint("Coincident", 68, 1, 69, 1),
    Sketcher.Constraint("Coincident", 69, 2, 67, 1),
    Sketcher.Constraint("Coincident", 70, 1, 71, 1),
    Sketcher.Constraint("Coincident", 71, 2, 72, 1),
    Sketcher.Constraint("Coincident", 72, 2, 70, 2),
    Sketcher.Constraint("Coincident", 73, 1, 74, 1),
    Sketcher.Constraint("Coincident", 74, 2, 75, 1),
    Sketcher.Constraint("Coincident", 75, 2, 73, 2),
    Sketcher.Constraint("Horizontal", 0),
    Sketcher.Constraint("Vertical", 2),
    Sketcher.Constraint("Horizontal", 4),
    Sketcher.Constraint("Vertical", 5),
    Sketcher.Constraint("Vertical", 7),
    Sketcher.Constraint("Horizontal", 8),
    Sketcher.Constraint("Vertical", 9),
    Sketcher.Constraint("Horizontal", 11),
    Sketcher.Constraint("Vertical", 12),
    Sketcher.Constraint("Horizontal", 13),
    Sketcher.Constraint("Horizontal", 16),
    Sketcher.Constraint("Vertical", 17),
    Sketcher.Constraint("Horizontal", 19),
    Sketcher.Constraint("Horizontal", 21),
    Sketcher.Constraint("Horizontal", 23),
    Sketcher.Constraint("Horizontal", 25),
    Sketcher.Constraint("Horizontal", 27),
    Sketcher.Constraint("Horizontal", 29),
    Sketcher.Constraint("Horizontal", 31),
    Sketcher.Constraint("Horizontal", 33),
    Sketcher.Constraint("Horizontal", 35),
    Sketcher.Constraint("Horizontal", 37),
    Sketcher.Constraint("Horizontal", 39),
    Sketcher.Constraint("Horizontal", 41),
    Sketcher.Constraint("Horizontal", 43),
    Sketcher.Constraint("Horizontal", 45),
    Sketcher.Constraint("Horizontal", 47),
    Sketcher.Constraint("Horizontal", 49),
    Sketcher.Constraint("Horizontal", 51),
    Sketcher.Constraint("Horizontal", 53),
    Sketcher.Constraint("Horizontal", 55),
    Sketcher.Constraint("Horizontal", 57),
    Sketcher.Constraint("Vertical", 58),
    Sketcher.Constraint("Horizontal", 60),
    Sketcher.Constraint("Vertical", 62),
    Sketcher.Constraint("Horizontal", 63),
    Sketcher.Constraint("Horizontal", 65),
    Sketcher.Constraint("Vertical", 66),
    Sketcher.Constraint("Horizontal", 67),
    Sketcher.Constraint("Vertical", 69),
    Sketcher.Constraint("Vertical", 71),
    Sketcher.Constraint("Horizontal", 72),
    Sketcher.Constraint("Horizontal", 74),
    Sketcher.Constraint("Vertical", 75),
    Sketcher.Constraint("Coincident", 2, 2, 1, 3),
    Sketcher.Constraint("Coincident", 4, 2, 3, 3),
    Sketcher.Constraint("Coincident", 7, 2, 6, 3),
    Sketcher.Constraint("Coincident", 11, 2, 10, 3),
    Sketcher.Constraint("Coincident", 12, 2, 14, 3),
    Sketcher.Constraint("Coincident", 16, 2, 15, 3),
    Sketcher.Constraint("Coincident", 60, 2, 59, 3),
    Sketcher.Constraint("Coincident", 62, 2, 61, 3),
    Sketcher.Constraint("Coincident", 65, 2, 64, 3),
    Sketcher.Constraint("Coincident", 69, 2, 68, 3),
    Sketcher.Constraint("Coincident", 71, 2, 70, 3),
    Sketcher.Constraint("Coincident", 74, 2, 73, 3),
    Sketcher.Constraint("Equal", 1, 3),
    Sketcher.Constraint("Equal", 3, 6),
    Sketcher.Constraint("Equal", 6, 10),
    Sketcher.Constraint("Equal", 10, 14),
    Sketcher.Constraint("Equal", 14, 15),
    Sketcher.Constraint("Equal", 15, 18),
    Sketcher.Constraint("Equal", 18, 20),
    Sketcher.Constraint("Equal", 20, 22),
    Sketcher.Constraint("Equal", 22, 24),
    Sketcher.Constraint("Equal", 24, 26),
    Sketcher.Constraint("Equal", 26, 28),
    Sketcher.Constraint("Equal", 28, 30),
    Sketcher.Constraint("Equal", 30, 32),
    Sketcher.Constraint("Equal", 32, 34),
    Sketcher.Constraint("Equal", 34, 36),
    Sketcher.Constraint("Equal", 36, 38),
    Sketcher.Constraint("Equal", 38, 40),
    Sketcher.Constraint("Equal", 40, 42),
    Sketcher.Constraint("Equal", 42, 44),
    Sketcher.Constraint("Equal", 44, 46),
    Sketcher.Constraint("Equal", 46, 48),
    Sketcher.Constraint("Equal", 48, 50),
    Sketcher.Constraint("Equal", 50, 52),
    Sketcher.Constraint("Equal", 52, 54),
    Sketcher.Constraint("Equal", 54, 56),
    Sketcher.Constraint("Equal", 56, 59),
    Sketcher.Constraint("Equal", 59, 61),
    Sketcher.Constraint("Equal", 61, 64),
    Sketcher.Constraint("Equal", 64, 68),
    Sketcher.Constraint("Equal", 68, 70),
    Sketcher.Constraint("Equal", 70, 73),
    Sketcher.Constraint("Symmetric", 34, 3, 38, 3, -2),
    Sketcher.Constraint("Symmetric", 36, 3, 40, 3, -2),
    Sketcher.Constraint("Symmetric", 32, 3, 50, 3, -2),
    Sketcher.Constraint("Symmetric", 26, 3, 52, 3, -2),
    Sketcher.Constraint("Symmetric", 28, 3, 54, 3, -2),
    Sketcher.Constraint("Symmetric", 30, 3, 56, 3, -2),
    Sketcher.Constraint("Symmetric", 14, 3, 59, 3, -2),
    Sketcher.Constraint("Symmetric", 15, 3, 61, 3, -2),
    Sketcher.Constraint("Symmetric", 1, 3, 64, 3, -2),
    Sketcher.Constraint("Symmetric", 10, 3, 68, 3, -2),
    Sketcher.Constraint("Symmetric", 3, 3, 70, 3, -2),
    Sketcher.Constraint("Symmetric", 6, 3, 73, 3, -2),
    Sketcher.Constraint("Horizontal", 1, 3, 3, 3),
    Sketcher.Constraint("Horizontal", 6, 3, 10, 3),
    Sketcher.Constraint("Horizontal", 18, 3, 20, 3),
    Sketcher.Constraint("Horizontal", 22, 3, 24, 3),
    Sketcher.Constraint("Horizontal", 26, 3, 28, 3),
    Sketcher.Constraint("Horizontal", 30, 3, 32, 3),
    Sketcher.Constraint("Horizontal", 28, 3, 34, 3),
    Sketcher.Constraint("Horizontal", 32, 3, 36, 3),
    Sketcher.Constraint("Horizontal", 44, 3, 46, 3),
    Sketcher.Constraint("Horizontal", 42, 3, 48, 3),
    Sketcher.Constraint("Horizontal", 20, 3, 18, 1),
    Sketcher.Constraint("Horizontal", 19, 2, 20, 1),
    Sketcher.Constraint("Horizontal", 24, 3, 22, 1),
    Sketcher.Constraint("Horizontal", 23, 2, 24, 1),
    Sketcher.Constraint("Horizontal", 54, 3, 26, 1),
    Sketcher.Constraint("Horizontal", 27, 2, 28, 1),
    Sketcher.Constraint("Horizontal", 56, 3, 30, 1),
    Sketcher.Constraint("Horizontal", 31, 2, 32, 1),
    Sketcher.Constraint("Horizontal", 29, 2, 34, 1),
    Sketcher.Constraint("Horizontal", 33, 2, 36, 1),
    Sketcher.Constraint("Horizontal", 35, 2, 38, 1),
    Sketcher.Constraint("Horizontal", 37, 2, 40, 1),
    Sketcher.Constraint("Horizontal", 48, 3, 42, 1),
    Sketcher.Constraint("Horizontal", 46, 3, 44, 1),
    Sketcher.Constraint("Horizontal", 45, 2, 46, 1),
    Sketcher.Constraint("Horizontal", 43, 2, 48, 1),
    Sketcher.Constraint("Horizontal", 41, 2, 50, 1),
    Sketcher.Constraint("Horizontal", 39, 2, 52, 1),
    Sketcher.Constraint("Horizontal", 53, 2, 54, 1),
    Sketcher.Constraint("Horizontal", 51, 2, 56, 1),
    Sketcher.Constraint("Vertical", 3, 3, 6, 3),
    Sketcher.Constraint("Vertical", 1, 3, 10, 3),
    Sketcher.Constraint("Vertical", 10, 3, 14, 3),
    Sketcher.Constraint("Vertical", 14, 3, 15, 3),
    Sketcher.Constraint("Vertical", 20, 3, 22, 3),
    Sketcher.Constraint("Vertical", 18, 3, 24, 3),
    Sketcher.Constraint("Vertical", 28, 3, 30, 3),
    Sketcher.Constraint("Vertical", 26, 3, 32, 3),
    Sketcher.Constraint("Vertical", 34, 3, 36, 3),
    Sketcher.Constraint("Vertical", 42, 3, 44, 3),
    Sketcher.Constraint("Vertical", 46, 3, 48, 3),
    Sketcher.Constraint("Radius", 1, Q("0.5 mm")),
    Sketcher.Constraint("DistanceX", -1, 1, 3, 3, Q("55 mm")),
    Sketcher.Constraint("DistanceY", 6, 3, -1, 1, Q("34 mm")),
    Sketcher.Constraint("DistanceY", 15, 3, -1, 1, Q("14 mm")),
    Sketcher.Constraint("DistanceY", 30, 3, -1, 1, Q("10 mm")),
    Sketcher.Constraint("DistanceX", -1, 1, 1, 3, Q("49.9 mm")),
    Sketcher.Constraint("DistanceY", 1, 3, -1, 1, Q("39.1 mm")),
    Sketcher.Constraint("DistanceY", 14, 3, -1, 1, Q("19.1 mm")),
    Sketcher.Constraint("DistanceX", -1, 1, 18, 3, Q("14.4 mm")),
    Sketcher.Constraint("DistanceY", 18, 3, -1, 1, Q("20.7 mm")),
    Sketcher.Constraint("DistanceX", -1, 1, 20, 3, Q("17.6 mm")),
    Sketcher.Constraint("DistanceY", 22, 3, -1, 1, Q("17.6 mm")),
    Sketcher.Constraint("DistanceY", 26, 3, -1, 1, Q("13.1 mm")),
    Sketcher.Constraint("DistanceY", 42, 3, -1, 1, Q("5.5 mm")),
    Sketcher.Constraint("DistanceY", 44, 3, -1, 1, Q("2.4 mm")),
    Sketcher.Constraint("DistanceX", -1, 1, 26, 3, Q("21.45 mm")),
    Sketcher.Constraint("DistanceX", -1, 1, 28, 3, Q("25.55 mm")),
    Sketcher.Constraint("DistanceX", -1, 1, 34, 3, Q("4.55 mm")),
    Sketcher.Constraint("DistanceX", 42, 3, -1, 1, Q("12.45 mm")),
    Sketcher.Constraint("DistanceX", 46, 3, -1, 1, Q("15.55 mm")),
])
sketch4.setExpression("Constraints[216]", "Params.sketch4_radius")
pocket3 = doc.addObject("PartDesign::Pocket", "Pocket002")
body.addObject(pocket3)
pocket3.Profile = sketch4
pocket3.setExpression("Length", "Params.pocket3_length")
pocket3.Reversed = True

# Sketch on XZ plane
sketch5 = doc.addObject("Sketcher::SketchObject", "Sketch004")
body.addObject(sketch5)
sketch5.AttachmentSupport = (doc.XZ_Plane, [""])
sketch5.MapMode = "FlatFace"
sketch5.AttachmentOffset = App.Placement(App.Vector(0, 0, -3), App.Rotation())
sketch5.addGeometry([
    Part.Circle(App.Vector(52.5, -26.5, 0), App.Vector(0, 0, 1), 1),  # 0
    Part.Circle(App.Vector(52.5, -8, 0), App.Vector(0, 0, 1), 1),  # 1
    Part.Circle(App.Vector(67, -100, 0), App.Vector(0, 0, 1), 1.5),  # 2
    Part.Circle(App.Vector(68.9, -80, 0), App.Vector(0, 0, 1), 1.5),  # 3
    Part.Circle(App.Vector(-52.5, -8, 0), App.Vector(0, 0, 1), 1),  # 4
    Part.Circle(App.Vector(-52.5, -26.5, 0), App.Vector(0, 0, 1), 1),  # 5
    Part.Circle(App.Vector(-68.9, -80, 0), App.Vector(0, 0, 1), 1.5),  # 6
    Part.Circle(App.Vector(-67, -100, 0), App.Vector(0, 0, 1), 1.5),  # 7
], False)
sketch5.addConstraint([
    Sketcher.Constraint("Equal", 0, 1),
    Sketcher.Constraint("Equal", 2, 3),
    Sketcher.Constraint("Equal", 1, 4),
    Sketcher.Constraint("Equal", 4, 5),
    Sketcher.Constraint("Equal", 3, 6),
    Sketcher.Constraint("Equal", 6, 7),
    Sketcher.Constraint("Symmetric", 1, 3, 4, 3, -2),
    Sketcher.Constraint("Symmetric", 0, 3, 5, 3, -2),
    Sketcher.Constraint("Symmetric", 3, 3, 6, 3, -2),
    Sketcher.Constraint("Symmetric", 2, 3, 7, 3, -2),
    Sketcher.Constraint("Vertical", 0, 3, 1, 3),
    Sketcher.Constraint("Diameter", 0, Q("2 mm")),
    Sketcher.Constraint("Diameter", 2, Q("3 mm")),
    Sketcher.Constraint("DistanceY", 1, 3, -1, 1, Q("8 mm")),
    Sketcher.Constraint("DistanceX", -1, 1, 2, 3, Q("67 mm")),
    Sketcher.Constraint("DistanceY", 2, 3, -1, 1, Q("100 mm")),
    Sketcher.Constraint("DistanceY", 3, 3, -1, 1, Q("80 mm")),
    Sketcher.Constraint("DistanceY", 0, 3, -1, 1, Q("26.5 mm")),
    Sketcher.Constraint("DistanceX", 4, 3, 1, 3, Q("104.9 mm")),
    Sketcher.Constraint("DistanceX", -1, 1, 3, 3, Q("68.915529 mm")),
])
sketch5.setExpression("Constraints[11]", "Params.sketch5_diameter")
sketch5.setExpression("Constraints[12]", "Params.sketch5_diameter2")
pocket4 = doc.addObject("PartDesign::Pocket", "Pocket003")
body.addObject(pocket4)
pocket4.Profile = sketch5
pocket4.setExpression("Length", "Params.pocket4_length")
pocket4.Reversed = True
doc.recompute()

fillet2 = doc.addObject("PartDesign::Fillet", "Fillet001")
body.addObject(fillet2)
fillet2.Base = (pocket4, edges_at(pocket4, [
    (57.5, 1.5, 0),
    (-57.5, 1.5, 0),
    (-57.5, 1.5, -27),
    (57.5, 1.5, -27),
]))
fillet2.setExpression("Radius", "Params.fillet2_radius")

doc.recompute()
